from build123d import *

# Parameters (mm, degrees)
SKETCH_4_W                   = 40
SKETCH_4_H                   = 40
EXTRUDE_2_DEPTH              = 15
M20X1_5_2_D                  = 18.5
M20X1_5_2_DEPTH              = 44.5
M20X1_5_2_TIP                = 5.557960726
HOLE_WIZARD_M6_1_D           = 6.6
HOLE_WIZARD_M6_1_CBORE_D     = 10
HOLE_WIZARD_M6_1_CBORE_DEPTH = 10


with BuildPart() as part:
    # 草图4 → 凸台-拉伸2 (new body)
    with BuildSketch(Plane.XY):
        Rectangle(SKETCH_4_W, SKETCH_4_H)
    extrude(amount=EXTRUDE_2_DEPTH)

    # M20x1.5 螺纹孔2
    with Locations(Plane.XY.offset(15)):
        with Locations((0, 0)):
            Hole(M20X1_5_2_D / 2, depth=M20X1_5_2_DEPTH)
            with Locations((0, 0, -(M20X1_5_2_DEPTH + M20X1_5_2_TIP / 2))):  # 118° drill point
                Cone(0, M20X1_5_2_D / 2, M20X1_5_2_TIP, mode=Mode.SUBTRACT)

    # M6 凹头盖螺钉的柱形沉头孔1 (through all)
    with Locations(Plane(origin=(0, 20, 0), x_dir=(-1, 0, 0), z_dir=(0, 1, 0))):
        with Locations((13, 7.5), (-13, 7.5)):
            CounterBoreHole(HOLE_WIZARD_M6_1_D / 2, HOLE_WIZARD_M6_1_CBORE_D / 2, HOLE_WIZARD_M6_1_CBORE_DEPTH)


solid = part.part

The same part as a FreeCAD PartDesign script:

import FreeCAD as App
import Part
import Sketcher
from FreeCAD import Vector

doc = App.newDocument("Part")
body = doc.addObject("PartDesign::Body", "Body")

# Sketch on XY plane
sketch1 = body.newObject("Sketcher::SketchObject", "Sketch")
sketch1.AttachmentSupport = (doc.getObject("XY_Plane"), [""])
sketch1.MapMode = "FlatFace"
sketch1.addGeometry([
    Part.LineSegment(Vector(-20, 20, 0), Vector(-20, -20, 0)),
    Part.LineSegment(Vector(-20, -20, 0), Vector(20, -20, 0)),
    Part.LineSegment(Vector(20, -20, 0), Vector(20, 20, 0)),
    Part.LineSegment(Vector(20, 20, 0), Vector(-20, 20, 0)),
], False)
sketch1.addConstraint([
    Sketcher.Constraint("Coincident", 0, 2, 1, 1),
    Sketcher.Constraint("Coincident", 1, 2, 2, 1),
    Sketcher.Constraint("Coincident", 2, 2, 3, 1),
    Sketcher.Constraint("Coincident", 3, 2, 0, 1),
    Sketcher.Constraint("Vertical", 0),
    Sketcher.Constraint("Horizontal", 1),
    Sketcher.Constraint("Vertical", 2),
    Sketcher.Constraint("Horizontal", 3),
    Sketcher.Constraint("Symmetric", 0, 2, 2, 2, -1, 1),
    Sketcher.Constraint("Equal", 3, 0),
    Sketcher.Constraint("DistanceX", 1, 1, 1, 2, 40.0),
])
pad1 = body.newObject("PartDesign::Pad", "Pad")
pad1.Profile = sketch1
pad1.Length = 15

# Sketch on XY plane
sketch2 = body.newObject("Sketcher::SketchObject", "Sketch001")
sketch2.AttachmentSupport = (doc.getObject("XY_Plane"), [""])
sketch2.MapMode = "FlatFace"
sketch2.AttachmentOffset = App.Placement(Vector(0, 0, 15), App.Rotation())
sketch2.addGeometry(Part.Circle(Vector(0, 0, 0), Vector(0, 0, 1), 9.25), False)
sketch2.addConstraint([
    Sketcher.Constraint("Coincident", 0, 3, -1, 1),
    Sketcher.Constraint("Diameter", 0, 18.5),
])
doc.recompute()
hole = body.newObject("PartDesign::Hole", "Hole")
hole.Profile = sketch2
hole.ThreadType = "None"
hole.Diameter = 18.5
hole.DepthType = "Dimension"
hole.Depth = 44.5
hole.DrillPoint = "Angled"
hole.DrillPointAngle = 118

# Sketch on XZ plane
sketch3 = body.newObject("Sketcher::SketchObject", "Sketch002")
sketch3.AttachmentSupport = (doc.getObject("XZ_Plane"), [""])
sketch3.MapMode = "FlatFace"
sketch3.AttachmentOffset = App.Placement(Vector(0, 0, -20), App.Rotation())
sketch3.addGeometry([
    Part.Circle(Vector(-13, 7.5, 0), Vector(0, 0, 1), 3.3),
    Part.Circle(Vector(13, 7.5, 0), Vector(0, 0, 1), 3.3),
], False)
sketch3.addConstraint([
    Sketcher.Constraint("Equal", 0, 1),
    Sketcher.Constraint("Symmetric", 0, 3, 1, 3, -2),
    Sketcher.Constraint("Diameter", 0, 6.6),
    Sketcher.Constraint("DistanceX", 0, 3, -1, 1, 13.0),
    Sketcher.Constraint("DistanceY", -1, 1, 0, 3, 7.5),
])
doc.recompute()
hole2 = body.newObject("PartDesign::Hole", "Hole001")
hole2.Profile = sketch3
hole2.ThreadType = "None"
hole2.Diameter = 6.6
hole2.DepthType = "ThroughAll"
hole2.HoleCutType = "Counterbore"
hole2.HoleCutDiameter = 10
hole2.HoleCutDepth = 10
hole2.Reversed = True

doc.recompute()
